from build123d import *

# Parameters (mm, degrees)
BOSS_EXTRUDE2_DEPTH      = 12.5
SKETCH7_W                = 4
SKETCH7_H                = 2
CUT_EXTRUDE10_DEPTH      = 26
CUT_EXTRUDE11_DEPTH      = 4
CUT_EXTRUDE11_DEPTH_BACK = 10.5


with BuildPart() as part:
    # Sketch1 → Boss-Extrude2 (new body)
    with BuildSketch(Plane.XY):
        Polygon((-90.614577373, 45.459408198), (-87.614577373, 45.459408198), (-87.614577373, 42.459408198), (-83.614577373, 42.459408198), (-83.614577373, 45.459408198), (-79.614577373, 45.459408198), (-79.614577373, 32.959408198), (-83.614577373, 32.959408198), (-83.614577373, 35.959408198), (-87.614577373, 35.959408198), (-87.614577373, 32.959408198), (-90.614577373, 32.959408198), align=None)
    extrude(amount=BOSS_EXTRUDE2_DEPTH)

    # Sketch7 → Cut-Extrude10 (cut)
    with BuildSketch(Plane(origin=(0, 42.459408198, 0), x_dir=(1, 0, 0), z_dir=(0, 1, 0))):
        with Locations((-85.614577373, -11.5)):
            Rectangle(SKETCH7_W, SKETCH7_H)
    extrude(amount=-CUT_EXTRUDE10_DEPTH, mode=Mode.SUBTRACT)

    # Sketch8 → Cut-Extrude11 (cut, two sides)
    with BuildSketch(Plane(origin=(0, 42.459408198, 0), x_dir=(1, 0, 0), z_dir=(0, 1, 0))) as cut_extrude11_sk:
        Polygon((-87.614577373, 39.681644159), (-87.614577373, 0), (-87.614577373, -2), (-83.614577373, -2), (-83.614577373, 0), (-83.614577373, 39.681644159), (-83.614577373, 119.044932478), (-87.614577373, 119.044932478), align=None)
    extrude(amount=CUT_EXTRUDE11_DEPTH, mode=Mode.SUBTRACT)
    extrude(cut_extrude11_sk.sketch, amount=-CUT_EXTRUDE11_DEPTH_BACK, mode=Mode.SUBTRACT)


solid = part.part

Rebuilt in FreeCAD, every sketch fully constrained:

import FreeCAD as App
import Part
import Sketcher
Q = App.Units.Quantity

doc = App.newDocument("Part")
params = doc.addObject("Spreadsheet::Sheet", "Params")
for row, (alias, value) in enumerate([
    ("sketch1_width", "3 mm"),
    ("sketch1_width2", "4 mm"),
    ("sketch1_height", "12.5 mm"),
    ("pad1_length", "12.5 mm"),
    ("sketch2_width", "4 mm"),
    ("sketch2_height", "2 mm"),
    ("pocket1_length", "26 mm"),
    ("sketch3_width", "4 mm"),
], start=1):
    params.set(f"A{row}", alias)
    params.set(f"B{row}", "=" + value)
    params.setAlias(f"B{row}", alias)

body = doc.addObject("PartDesign::Body", "Body")

sketch1 = body.newObject("Sketcher::SketchObject", "Sketch")
sketch1.AttachmentSupport = (doc.getObject("XY_Plane"), [""])
sketch1.MapMode = "FlatFace"
sketch1.addGeometry([
    Part.LineSegment(App.Vector(-87.6, 45.5, 0), App.Vector(-90.6, 45.5, 0)),
    Part.LineSegment(App.Vector(-90.6, 45.5, 0), App.Vector(-90.6, 33, 0)),
    Part.LineSegment(App.Vector(-90.6, 33, 0), App.Vector(-87.6, 33, 0)),
    Part.LineSegment(App.Vector(-87.6, 33, 0), App.Vector(-87.6, 36, 0)),
    Part.LineSegment(App.Vector(-87.6, 36, 0), App.Vector(-83.6, 36, 0)),
    Part.LineSegment(App.Vector(-83.6, 36, 0), App.Vector(-83.6, 33, 0)),
    Part.LineSegment(App.Vector(-83.6, 33, 0), App.Vector(-79.6, 33, 0)),
    Part.LineSegment(App.Vector(-79.6, 33, 0), App.Vector(-79.6, 45.5, 0)),
    Part.LineSegment(App.Vector(-79.6, 45.5, 0), App.Vector(-83.6, 45.5, 0)),
    Part.LineSegment(App.Vector(-83.6, 45.5, 0), App.Vector(-83.6, 42.5, 0)),
    Part.LineSegment(App.Vector(-83.6, 42.5, 0), App.Vector(-87.6, 42.5, 0)),
    Part.LineSegment(App.Vector(-87.6, 42.5, 0), App.Vector(-87.6, 45.5, 0)),
], False)
sketch1.addConstraint([
    Sketcher.Constraint("Coincident", 0, 2, 1, 1),
    Sketcher.Constraint("Coincident", 1, 2, 2, 1),
    Sketcher.Constraint("Coincident", 2, 2, 3, 1),
    Sketcher.Constraint("Coincident", 3, 2, 4, 1),
    Sketcher.Constraint("Coincident", 4, 2, 5, 1),
    Sketcher.Constraint("Coincident", 5, 2, 6, 1),
    Sketcher.Constraint("Coincident", 6, 2, 7, 1),
    Sketcher.Constraint("Coincident", 7, 2, 8, 1),
    Sketcher.Constraint("Coincident", 8, 2, 9, 1),
    Sketcher.Constraint("Coincident", 9, 2, 10, 1),
    Sketcher.Constraint("Coincident", 10, 2, 11, 1),
    Sketcher.Constraint("Coincident", 11, 2, 0, 1),
    Sketcher.Constraint("Horizontal", 0),
    Sketcher.Constraint("Vertical", 1),
    Sketcher.Constraint("Horizontal", 2),
    Sketcher.Constraint("Vertical", 3),
    Sketcher.Constraint("Horizontal", 4),
    Sketcher.Constraint("Vertical", 5),
    Sketcher.Constraint("Horizontal", 6),
    Sketcher.Constraint("Vertical", 7),
    Sketcher.Constraint("Horizontal", 8),
    Sketcher.Constraint("Vertical", 9),
    Sketcher.Constraint("Horizontal", 10),
    Sketcher.Constraint("Vertical", 11),
    Sketcher.Constraint("Horizontal", 2, 2, 5, 2),
    Sketcher.Constraint("Horizontal", 0, 2, 7, 2),
    Sketcher.Constraint("Vertical", 5, 2, 8, 2),
    Sketcher.Constraint("Vertical", 3, 2, 10, 2),
    Sketcher.Constraint("Equal", 4, 6),
    Sketcher.Constraint("Equal", 2, 3),
    Sketcher.Constraint("Equal", 5, 9),
    Sketcher.Constraint("DistanceX", 0, 2, 0, 1, Q("3 mm")),
    Sketcher.Constraint("DistanceX", 4, 1, 4, 2, Q("4 mm")),
    Sketcher.Constraint("DistanceY", 1, 2, 1, 1, Q("12.5 mm")),
    Sketcher.Constraint("DistanceY", -1, 1, 0, 2, Q("45.459408 mm")),
    Sketcher.Constraint("DistanceX", 0, 2, -1, 1, Q("90.614577 mm")),
])
sketch1.setExpression("Constraints[31]", "Params.sketch1_width")
sketch1.setExpression("Constraints[32]", "Params.sketch1_width2")
sketch1.setExpression("Constraints[33]", "Params.sketch1_height")
pad1 = body.newObject("PartDesign::Pad", "Pad")
pad1.Profile = sketch1
pad1.setExpression("Length", "Params.pad1_length")

sketch2 = body.newObject("Sketcher::SketchObject", "Sketch001")
sketch2.AttachmentSupport = (doc.getObject("XZ_Plane"), [""])
sketch2.MapMode = "FlatFace"
sketch2.AttachmentOffset = App.Placement(App.Vector(0, 0, -42.459408), App.Rotation())
sketch2.addGeometry([
    Part.LineSegment(App.Vector(-87.6, 10.5, 0), App.Vector(-87.6, 12.5, 0)),
    Part.LineSegment(App.Vector(-87.6, 12.5, 0), App.Vector(-83.6, 12.5, 0)),
    Part.LineSegment(App.Vector(-83.6, 12.5, 0), App.Vector(-83.6, 10.5, 0)),
    Part.LineSegment(App.Vector(-83.6, 10.5, 0), App.Vector(-87.6, 10.5, 0)),
], False)
sketch2.addConstraint([
    Sketcher.Constraint("Coincident", 0, 2, 1, 1),
    Sketcher.Constraint("Coincident", 1, 2, 2, 1),
    Sketcher.Constraint("Coincident", 2, 2, 3, 1),
    Sketcher.Constraint("Coincident", 3, 2, 0, 1),
    Sketcher.Constraint("Vertical", 0),
    Sketcher.Constraint("Horizontal", 1),
    Sketcher.Constraint("Vertical", 2),
    Sketcher.Constraint("Horizontal", 3),
    Sketcher.Constraint("DistanceX", 1, 1, 1, 2, Q("4 mm")),
    Sketcher.Constraint("DistanceY", 0, 1, 0, 2, Q("2 mm")),
    Sketcher.Constraint("DistanceY", -1, 1, 0, 2, Q("12.5 mm")),
    Sketcher.Constraint("DistanceX", 0, 2, -1, 1, Q("87.614577 mm")),
])
sketch2.setExpression("Constraints[8]", "Params.sketch2_width")
sketch2.setExpression("Constraints[9]", "Params.sketch2_height")
pocket1 = body.newObject("PartDesign::Pocket", "Pocket")
pocket1.Profile = sketch2
pocket1.setExpression("Length", "Params.pocket1_length")
pocket1.Reversed = True

sketch3 = body.newObject("Sketcher::SketchObject", "Sketch002")
sketch3.AttachmentSupport = (doc.getObject("XZ_Plane"), [""])
sketch3.MapMode = "FlatFace"
sketch3.AttachmentOffset = App.Placement(App.Vector(0, 0, -42.459408), App.Rotation())
sketch3.addGeometry([
    Part.LineSegment(App.Vector(-87.6, 2, 0), App.Vector(-83.6, 2, 0)),
    Part.LineSegment(App.Vector(-83.6, 2, 0), App.Vector(-83.6, -119, 0)),
    Part.LineSegment(App.Vector(-83.6, -119, 0), App.Vector(-87.6, -119, 0)),
    Part.LineSegment(App.Vector(-87.6, -119, 0), App.Vector(-87.6, 2, 0)),
], False)
sketch3.addConstraint([
    Sketcher.Constraint("Coincident", 0, 2, 1, 1),
    Sketcher.Constraint("Coincident", 1, 2, 2, 1),
    Sketcher.Constraint("Coincident", 2, 2, 3, 1),
    Sketcher.Constraint("Coincident", 3, 2, 0, 1),
    Sketcher.Constraint("Horizontal", 0),
    Sketcher.Constraint("Vertical", 1),
    Sketcher.Constraint("Horizontal", 2),
    Sketcher.Constraint("Vertical", 3),
    Sketcher.Constraint("DistanceX", 0, 1, 0, 2, Q("4 mm")),
    Sketcher.Constraint("DistanceY", -1, 1, 0, 2, Q("2 mm")),
    Sketcher.Constraint("DistanceY", 1, 2, 1, 1, Q("121.044932 mm")),
    Sketcher.Constraint("DistanceX", 0, 2, -1, 1, Q("83.614577 mm")),
])
sketch3.setExpression("Constraints[8]", "Params.sketch3_width")
pocket2 = body.newObject("PartDesign::Pocket", "Pocket001")
pocket2.Profile = sketch3
pocket2.Type = "ThroughAll"
pocket2.Midplane = True

doc.recompute()
